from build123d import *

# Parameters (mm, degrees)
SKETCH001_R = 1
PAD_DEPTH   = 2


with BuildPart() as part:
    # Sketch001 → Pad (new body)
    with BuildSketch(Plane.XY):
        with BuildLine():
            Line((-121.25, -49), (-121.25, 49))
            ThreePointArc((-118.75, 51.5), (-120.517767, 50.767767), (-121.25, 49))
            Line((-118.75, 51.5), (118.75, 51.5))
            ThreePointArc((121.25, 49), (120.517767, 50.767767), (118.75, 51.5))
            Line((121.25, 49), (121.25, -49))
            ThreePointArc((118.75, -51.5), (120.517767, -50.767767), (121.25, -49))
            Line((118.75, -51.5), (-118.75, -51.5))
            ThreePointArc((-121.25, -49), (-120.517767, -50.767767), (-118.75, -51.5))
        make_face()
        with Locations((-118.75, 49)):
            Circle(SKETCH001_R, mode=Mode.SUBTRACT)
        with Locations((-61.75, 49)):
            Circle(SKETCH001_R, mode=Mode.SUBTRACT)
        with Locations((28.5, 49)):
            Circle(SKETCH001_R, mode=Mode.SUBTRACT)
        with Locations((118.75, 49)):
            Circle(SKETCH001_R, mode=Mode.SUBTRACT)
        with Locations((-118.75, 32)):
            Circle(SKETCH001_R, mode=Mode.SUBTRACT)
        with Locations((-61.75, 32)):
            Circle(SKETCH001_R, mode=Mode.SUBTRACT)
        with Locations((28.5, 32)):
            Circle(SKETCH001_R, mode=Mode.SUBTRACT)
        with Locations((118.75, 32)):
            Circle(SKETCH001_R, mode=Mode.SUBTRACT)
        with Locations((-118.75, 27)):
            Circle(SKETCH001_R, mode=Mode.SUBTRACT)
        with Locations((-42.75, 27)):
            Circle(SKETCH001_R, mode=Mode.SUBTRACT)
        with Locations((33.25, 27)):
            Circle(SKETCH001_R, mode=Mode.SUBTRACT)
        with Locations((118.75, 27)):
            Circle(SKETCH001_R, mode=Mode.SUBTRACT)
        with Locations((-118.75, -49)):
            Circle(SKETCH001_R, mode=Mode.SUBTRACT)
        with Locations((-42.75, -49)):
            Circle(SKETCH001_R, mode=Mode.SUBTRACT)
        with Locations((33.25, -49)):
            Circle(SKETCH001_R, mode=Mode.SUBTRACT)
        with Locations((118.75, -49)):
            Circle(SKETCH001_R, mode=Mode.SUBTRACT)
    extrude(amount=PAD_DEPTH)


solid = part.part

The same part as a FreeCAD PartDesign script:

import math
import FreeCAD as App
import Part
import Sketcher
from FreeCAD import Vector
Q = App.Units.Quantity

doc = App.newDocument("Part")
params = doc.addObject("Spreadsheet::Sheet", "Params")
for row, (alias, value) in enumerate([
    ("sketch1_diameter", "2 mm"),
    ("sketch1_radius", "2.5 mm"),
    ("sketch1_height", "98 mm"),
    ("sketch1_width", "237.5 mm"),
    ("pad1_length", "2 mm"),
], start=1):
    params.set(f"A{row}", alias)
    params.set(f"B{row}", "=" + value)
    params.setAlias(f"B{row}", alias)

body = doc.addObject("PartDesign::Body", "Body")

# Sketch on XY plane
sketch1 = body.newObject("Sketcher::SketchObject", "Sketch")
sketch1.AttachmentSupport = (doc.getObject("XY_Plane"), [""])
sketch1.MapMode = "FlatFace"
sketch1.addGeometry(Part.LineSegment(Vector(-121.2, 49, 0), Vector(-121.2, -49, 0)), False)
sketch1.addGeometry(Part.ArcOfCircle(Part.Circle(Vector(-118.8, -49, 0), Vector(0, 0, 1), 2.5), math.radians(180), math.radians(270)), False)
sketch1.addGeometry(Part.LineSegment(Vector(-118.8, -51.5, 0), Vector(118.8, -51.5, 0)), False)
sketch1.addGeometry(Part.ArcOfCircle(Part.Circle(Vector(118.8, -49, 0), Vector(0, 0, 1), 2.5), math.radians(-90), math.radians(0)), False)
sketch1.addGeometry(Part.LineSegment(Vector(121.2, -49, 0), Vector(121.2, 49, 0)), False)
sketch1.addGeometry(Part.ArcOfCircle(Part.Circle(Vector(118.8, 49, 0), Vector(0, 0, 1), 2.5), math.radians(0), math.radians(90)), False)
sketch1.addGeometry(Part.LineSegment(Vector(118.8, 51.5, 0), Vector(-118.8, 51.5, 0)), False)
sketch1.addGeometry(Part.ArcOfCircle(Part.Circle(Vector(-118.8, 49, 0), Vector(0, 0, 1), 2.5), math.radians(90), math.radians(180)), False)
sketch1.addGeometry(Part.Circle(Vector(118.8, -49, 0), Vector(0, 0, 1), 1), False)
sketch1.addGeometry(Part.Circle(Vector(33.2, -49, 0), Vector(0, 0, 1), 1), False)
sketch1.addGeometry(Part.Circle(Vector(-42.8, -49, 0), Vector(0, 0, 1), 1), False)
sketch1.addGeometry(Part.Circle(Vector(-118.8, -49, 0), Vector(0, 0, 1), 1), False)
sketch1.addGeometry(Part.Circle(Vector(118.8, 27, 0), Vector(0, 0, 1), 1), False)
sketch1.addGeometry(Part.Circle(Vector(118.8, 32, 0), Vector(0, 0, 1), 1), False)
sketch1.addGeometry(Part.Circle(Vector(118.8, 49, 0), Vector(0, 0, 1), 1), False)
sketch1.addGeometry(Part.Circle(Vector(33.2, 27, 0), Vector(0, 0, 1), 1), False)
sketch1.addGeometry(Part.Circle(Vector(28.5, 32, 0), Vector(0, 0, 1), 1), False)
sketch1.addGeometry(Part.Circle(Vector(28.5, 49, 0), Vector(0, 0, 1), 1), False)
sketch1.addGeometry(Part.Circle(Vector(-42.8, 27, 0), Vector(0, 0, 1), 1), False)
sketch1.addGeometry(Part.Circle(Vector(-61.8, 32, 0), Vector(0, 0, 1), 1), False)
sketch1.addGeometry(Part.Circle(Vector(-118.8, 27, 0), Vector(0, 0, 1), 1), False)
sketch1.addGeometry(Part.Circle(Vector(-118.8, 32, 0), Vector(0, 0, 1), 1), False)
sketch1.addGeometry(Part.Circle(Vector(-61.8, 49, 0), Vector(0, 0, 1), 1), False)
sketch1.addGeometry(Part.Circle(Vector(-118.8, 49, 0), Vector(0, 0, 1), 1), False)
sketch1.addConstraint(Sketcher.Constraint("Tangent", 0, 2, 1, 1))
sketch1.addConstraint(Sketcher.Constraint("Tangent", 1, 2, 2, 1))
sketch1.addConstraint(Sketcher.Constraint("Tangent", 2, 2, 3, 1))
sketch1.addConstraint(Sketcher.Constraint("Tangent", 3, 2, 4, 1))
sketch1.addConstraint(Sketcher.Constraint("Tangent", 4, 2, 5, 1))
sketch1.addConstraint(Sketcher.Constraint("Tangent", 5, 2, 6, 1))
sketch1.addConstraint(Sketcher.Constraint("Tangent", 6, 2, 7, 1))
sketch1.addConstraint(Sketcher.Constraint("Tangent", 7, 2, 0, 1))
sketch1.addConstraint(Sketcher.Constraint("Vertical", 0))
sketch1.addConstraint(Sketcher.Constraint("Horizontal", 2))
sketch1.addConstraint(Sketcher.Constraint("Vertical", 4))
sketch1.addConstraint(Sketcher.Constraint("Horizontal", 6))
sketch1.addConstraint(Sketcher.Constraint("Coincident", 8, 3, 3, 3))
sketch1.addConstraint(Sketcher.Constraint("Coincident", 11, 3, 1, 3))
sketch1.addConstraint(Sketcher.Constraint("Coincident", 14, 3, 5, 3))
sketch1.addConstraint(Sketcher.Constraint("Coincident", 23, 3, 7, 3))
sketch1.addConstraint(Sketcher.Constraint("Equal", 1, 3))
sketch1.addConstraint(Sketcher.Constraint("Equal", 3, 5))
sketch1.addConstraint(Sketcher.Constraint("Equal", 5, 7))
sketch1.addConstraint(Sketcher.Constraint("Equal", 8, 9))
sketch1.addConstraint(Sketcher.Constraint("Equal", 9, 10))
sketch1.addConstraint(Sketcher.Constraint("Equal", 10, 11))
sketch1.addConstraint(Sketcher.Constraint("Equal", 11, 12))
sketch1.addConstraint(Sketcher.Constraint("Equal", 12, 13))
sketch1.addConstraint(Sketcher.Constraint("Equal", 13, 14))
sketch1.addConstraint(Sketcher.Constraint("Equal", 14, 15))
sketch1.addConstraint(Sketcher.Constraint("Equal", 15, 16))
sketch1.addConstraint(Sketcher.Constraint("Equal", 16, 17))
sketch1.addConstraint(Sketcher.Constraint("Equal", 17, 18))
sketch1.addConstraint(Sketcher.Constraint("Equal", 18, 19))
sketch1.addConstraint(Sketcher.Constraint("Equal", 19, 20))
sketch1.addConstraint(Sketcher.Constraint("Equal", 20, 21))
sketch1.addConstraint(Sketcher.Constraint("Equal", 21, 22))
sketch1.addConstraint(Sketcher.Constraint("Equal", 22, 23))
sketch1.addConstraint(Sketcher.Constraint("Symmetric", 1, 3, 5, 3, -1, 1))
sketch1.addConstraint(Sketcher.Constraint("Symmetric", 12, 3, 20, 3, -2))
sketch1.addConstraint(Sketcher.Constraint("Symmetric", 13, 3, 21, 3, -2))
sketch1.addConstraint(Sketcher.Constraint("Horizontal", 8, 3, 9, 3))
sketch1.addConstraint(Sketcher.Constraint("Horizontal", 9, 3, 10, 3))
sketch1.addConstraint(Sketcher.Constraint("Horizontal", 12, 3, 15, 3))
sketch1.addConstraint(Sketcher.Constraint("Horizontal", 13, 3, 16, 3))
sketch1.addConstraint(Sketcher.Constraint("Horizontal", 14, 3, 17, 3))
sketch1.addConstraint(Sketcher.Constraint("Horizontal", 15, 3, 18, 3))
sketch1.addConstraint(Sketcher.Constraint("Horizontal", 16, 3, 19, 3))
sketch1.addConstraint(Sketcher.Constraint("Horizontal", 17, 3, 22, 3))
sketch1.addConstraint(Sketcher.Constraint("Vertical", 8, 3, 12, 3))
sketch1.addConstraint(Sketcher.Constraint("Vertical", 12, 3, 13, 3))
sketch1.addConstraint(Sketcher.Constraint("Vertical", 9, 3, 15, 3))
sketch1.addConstraint(Sketcher.Constraint("Vertical", 16, 3, 17, 3))
sketch1.addConstraint(Sketcher.Constraint("Vertical", 10, 3, 18, 3))
sketch1.addConstraint(Sketcher.Constraint("Vertical", 19, 3, 22, 3))
sketch1.addConstraint(Sketcher.Constraint("Diameter", 8, Q("2 mm")))
sketch1.addConstraint(Sketcher.Constraint("Radius", 1, Q("2.5 mm")))
sketch1.addConstraint(Sketcher.Constraint("DistanceY", 0, 2, 0, 1, Q("98 mm")))
sketch1.addConstraint(Sketcher.Constraint("DistanceX", 2, 1, 2, 2, Q("237.5 mm")))
sketch1.addConstraint(Sketcher.Constraint("DistanceY", -1, 1, 12, 3, Q("27 mm")))
sketch1.addConstraint(Sketcher.Constraint("DistanceY", -1, 1, 13, 3, Q("32 mm")))
sketch1.addConstraint(Sketcher.Constraint("DistanceX", 1, 3, 9, 3, Q("152 mm")))
sketch1.addConstraint(Sketcher.Constraint("DistanceX", 10, 3, 9, 3, Q("76 mm")))
sketch1.addConstraint(Sketcher.Constraint("DistanceX", 19, 3, 18, 3, Q("19 mm")))
sketch1.addConstraint(Sketcher.Constraint("DistanceX", -1, 1, 16, 3, Q("28.5 mm")))
sketch1.setExpression("Constraints[51]", "Params.sketch1_diameter")
sketch1.setExpression("Constraints[52]", "Params.sketch1_radius")
sketch1.setExpression("Constraints[53]", "Params.sketch1_height")
sketch1.setExpression("Constraints[54]", "Params.sketch1_width")
pad1 = body.newObject("PartDesign::Pad", "Pad")
pad1.Profile = sketch1
pad1.setExpression("Length", "Params.pad1_length")

doc.recompute()
